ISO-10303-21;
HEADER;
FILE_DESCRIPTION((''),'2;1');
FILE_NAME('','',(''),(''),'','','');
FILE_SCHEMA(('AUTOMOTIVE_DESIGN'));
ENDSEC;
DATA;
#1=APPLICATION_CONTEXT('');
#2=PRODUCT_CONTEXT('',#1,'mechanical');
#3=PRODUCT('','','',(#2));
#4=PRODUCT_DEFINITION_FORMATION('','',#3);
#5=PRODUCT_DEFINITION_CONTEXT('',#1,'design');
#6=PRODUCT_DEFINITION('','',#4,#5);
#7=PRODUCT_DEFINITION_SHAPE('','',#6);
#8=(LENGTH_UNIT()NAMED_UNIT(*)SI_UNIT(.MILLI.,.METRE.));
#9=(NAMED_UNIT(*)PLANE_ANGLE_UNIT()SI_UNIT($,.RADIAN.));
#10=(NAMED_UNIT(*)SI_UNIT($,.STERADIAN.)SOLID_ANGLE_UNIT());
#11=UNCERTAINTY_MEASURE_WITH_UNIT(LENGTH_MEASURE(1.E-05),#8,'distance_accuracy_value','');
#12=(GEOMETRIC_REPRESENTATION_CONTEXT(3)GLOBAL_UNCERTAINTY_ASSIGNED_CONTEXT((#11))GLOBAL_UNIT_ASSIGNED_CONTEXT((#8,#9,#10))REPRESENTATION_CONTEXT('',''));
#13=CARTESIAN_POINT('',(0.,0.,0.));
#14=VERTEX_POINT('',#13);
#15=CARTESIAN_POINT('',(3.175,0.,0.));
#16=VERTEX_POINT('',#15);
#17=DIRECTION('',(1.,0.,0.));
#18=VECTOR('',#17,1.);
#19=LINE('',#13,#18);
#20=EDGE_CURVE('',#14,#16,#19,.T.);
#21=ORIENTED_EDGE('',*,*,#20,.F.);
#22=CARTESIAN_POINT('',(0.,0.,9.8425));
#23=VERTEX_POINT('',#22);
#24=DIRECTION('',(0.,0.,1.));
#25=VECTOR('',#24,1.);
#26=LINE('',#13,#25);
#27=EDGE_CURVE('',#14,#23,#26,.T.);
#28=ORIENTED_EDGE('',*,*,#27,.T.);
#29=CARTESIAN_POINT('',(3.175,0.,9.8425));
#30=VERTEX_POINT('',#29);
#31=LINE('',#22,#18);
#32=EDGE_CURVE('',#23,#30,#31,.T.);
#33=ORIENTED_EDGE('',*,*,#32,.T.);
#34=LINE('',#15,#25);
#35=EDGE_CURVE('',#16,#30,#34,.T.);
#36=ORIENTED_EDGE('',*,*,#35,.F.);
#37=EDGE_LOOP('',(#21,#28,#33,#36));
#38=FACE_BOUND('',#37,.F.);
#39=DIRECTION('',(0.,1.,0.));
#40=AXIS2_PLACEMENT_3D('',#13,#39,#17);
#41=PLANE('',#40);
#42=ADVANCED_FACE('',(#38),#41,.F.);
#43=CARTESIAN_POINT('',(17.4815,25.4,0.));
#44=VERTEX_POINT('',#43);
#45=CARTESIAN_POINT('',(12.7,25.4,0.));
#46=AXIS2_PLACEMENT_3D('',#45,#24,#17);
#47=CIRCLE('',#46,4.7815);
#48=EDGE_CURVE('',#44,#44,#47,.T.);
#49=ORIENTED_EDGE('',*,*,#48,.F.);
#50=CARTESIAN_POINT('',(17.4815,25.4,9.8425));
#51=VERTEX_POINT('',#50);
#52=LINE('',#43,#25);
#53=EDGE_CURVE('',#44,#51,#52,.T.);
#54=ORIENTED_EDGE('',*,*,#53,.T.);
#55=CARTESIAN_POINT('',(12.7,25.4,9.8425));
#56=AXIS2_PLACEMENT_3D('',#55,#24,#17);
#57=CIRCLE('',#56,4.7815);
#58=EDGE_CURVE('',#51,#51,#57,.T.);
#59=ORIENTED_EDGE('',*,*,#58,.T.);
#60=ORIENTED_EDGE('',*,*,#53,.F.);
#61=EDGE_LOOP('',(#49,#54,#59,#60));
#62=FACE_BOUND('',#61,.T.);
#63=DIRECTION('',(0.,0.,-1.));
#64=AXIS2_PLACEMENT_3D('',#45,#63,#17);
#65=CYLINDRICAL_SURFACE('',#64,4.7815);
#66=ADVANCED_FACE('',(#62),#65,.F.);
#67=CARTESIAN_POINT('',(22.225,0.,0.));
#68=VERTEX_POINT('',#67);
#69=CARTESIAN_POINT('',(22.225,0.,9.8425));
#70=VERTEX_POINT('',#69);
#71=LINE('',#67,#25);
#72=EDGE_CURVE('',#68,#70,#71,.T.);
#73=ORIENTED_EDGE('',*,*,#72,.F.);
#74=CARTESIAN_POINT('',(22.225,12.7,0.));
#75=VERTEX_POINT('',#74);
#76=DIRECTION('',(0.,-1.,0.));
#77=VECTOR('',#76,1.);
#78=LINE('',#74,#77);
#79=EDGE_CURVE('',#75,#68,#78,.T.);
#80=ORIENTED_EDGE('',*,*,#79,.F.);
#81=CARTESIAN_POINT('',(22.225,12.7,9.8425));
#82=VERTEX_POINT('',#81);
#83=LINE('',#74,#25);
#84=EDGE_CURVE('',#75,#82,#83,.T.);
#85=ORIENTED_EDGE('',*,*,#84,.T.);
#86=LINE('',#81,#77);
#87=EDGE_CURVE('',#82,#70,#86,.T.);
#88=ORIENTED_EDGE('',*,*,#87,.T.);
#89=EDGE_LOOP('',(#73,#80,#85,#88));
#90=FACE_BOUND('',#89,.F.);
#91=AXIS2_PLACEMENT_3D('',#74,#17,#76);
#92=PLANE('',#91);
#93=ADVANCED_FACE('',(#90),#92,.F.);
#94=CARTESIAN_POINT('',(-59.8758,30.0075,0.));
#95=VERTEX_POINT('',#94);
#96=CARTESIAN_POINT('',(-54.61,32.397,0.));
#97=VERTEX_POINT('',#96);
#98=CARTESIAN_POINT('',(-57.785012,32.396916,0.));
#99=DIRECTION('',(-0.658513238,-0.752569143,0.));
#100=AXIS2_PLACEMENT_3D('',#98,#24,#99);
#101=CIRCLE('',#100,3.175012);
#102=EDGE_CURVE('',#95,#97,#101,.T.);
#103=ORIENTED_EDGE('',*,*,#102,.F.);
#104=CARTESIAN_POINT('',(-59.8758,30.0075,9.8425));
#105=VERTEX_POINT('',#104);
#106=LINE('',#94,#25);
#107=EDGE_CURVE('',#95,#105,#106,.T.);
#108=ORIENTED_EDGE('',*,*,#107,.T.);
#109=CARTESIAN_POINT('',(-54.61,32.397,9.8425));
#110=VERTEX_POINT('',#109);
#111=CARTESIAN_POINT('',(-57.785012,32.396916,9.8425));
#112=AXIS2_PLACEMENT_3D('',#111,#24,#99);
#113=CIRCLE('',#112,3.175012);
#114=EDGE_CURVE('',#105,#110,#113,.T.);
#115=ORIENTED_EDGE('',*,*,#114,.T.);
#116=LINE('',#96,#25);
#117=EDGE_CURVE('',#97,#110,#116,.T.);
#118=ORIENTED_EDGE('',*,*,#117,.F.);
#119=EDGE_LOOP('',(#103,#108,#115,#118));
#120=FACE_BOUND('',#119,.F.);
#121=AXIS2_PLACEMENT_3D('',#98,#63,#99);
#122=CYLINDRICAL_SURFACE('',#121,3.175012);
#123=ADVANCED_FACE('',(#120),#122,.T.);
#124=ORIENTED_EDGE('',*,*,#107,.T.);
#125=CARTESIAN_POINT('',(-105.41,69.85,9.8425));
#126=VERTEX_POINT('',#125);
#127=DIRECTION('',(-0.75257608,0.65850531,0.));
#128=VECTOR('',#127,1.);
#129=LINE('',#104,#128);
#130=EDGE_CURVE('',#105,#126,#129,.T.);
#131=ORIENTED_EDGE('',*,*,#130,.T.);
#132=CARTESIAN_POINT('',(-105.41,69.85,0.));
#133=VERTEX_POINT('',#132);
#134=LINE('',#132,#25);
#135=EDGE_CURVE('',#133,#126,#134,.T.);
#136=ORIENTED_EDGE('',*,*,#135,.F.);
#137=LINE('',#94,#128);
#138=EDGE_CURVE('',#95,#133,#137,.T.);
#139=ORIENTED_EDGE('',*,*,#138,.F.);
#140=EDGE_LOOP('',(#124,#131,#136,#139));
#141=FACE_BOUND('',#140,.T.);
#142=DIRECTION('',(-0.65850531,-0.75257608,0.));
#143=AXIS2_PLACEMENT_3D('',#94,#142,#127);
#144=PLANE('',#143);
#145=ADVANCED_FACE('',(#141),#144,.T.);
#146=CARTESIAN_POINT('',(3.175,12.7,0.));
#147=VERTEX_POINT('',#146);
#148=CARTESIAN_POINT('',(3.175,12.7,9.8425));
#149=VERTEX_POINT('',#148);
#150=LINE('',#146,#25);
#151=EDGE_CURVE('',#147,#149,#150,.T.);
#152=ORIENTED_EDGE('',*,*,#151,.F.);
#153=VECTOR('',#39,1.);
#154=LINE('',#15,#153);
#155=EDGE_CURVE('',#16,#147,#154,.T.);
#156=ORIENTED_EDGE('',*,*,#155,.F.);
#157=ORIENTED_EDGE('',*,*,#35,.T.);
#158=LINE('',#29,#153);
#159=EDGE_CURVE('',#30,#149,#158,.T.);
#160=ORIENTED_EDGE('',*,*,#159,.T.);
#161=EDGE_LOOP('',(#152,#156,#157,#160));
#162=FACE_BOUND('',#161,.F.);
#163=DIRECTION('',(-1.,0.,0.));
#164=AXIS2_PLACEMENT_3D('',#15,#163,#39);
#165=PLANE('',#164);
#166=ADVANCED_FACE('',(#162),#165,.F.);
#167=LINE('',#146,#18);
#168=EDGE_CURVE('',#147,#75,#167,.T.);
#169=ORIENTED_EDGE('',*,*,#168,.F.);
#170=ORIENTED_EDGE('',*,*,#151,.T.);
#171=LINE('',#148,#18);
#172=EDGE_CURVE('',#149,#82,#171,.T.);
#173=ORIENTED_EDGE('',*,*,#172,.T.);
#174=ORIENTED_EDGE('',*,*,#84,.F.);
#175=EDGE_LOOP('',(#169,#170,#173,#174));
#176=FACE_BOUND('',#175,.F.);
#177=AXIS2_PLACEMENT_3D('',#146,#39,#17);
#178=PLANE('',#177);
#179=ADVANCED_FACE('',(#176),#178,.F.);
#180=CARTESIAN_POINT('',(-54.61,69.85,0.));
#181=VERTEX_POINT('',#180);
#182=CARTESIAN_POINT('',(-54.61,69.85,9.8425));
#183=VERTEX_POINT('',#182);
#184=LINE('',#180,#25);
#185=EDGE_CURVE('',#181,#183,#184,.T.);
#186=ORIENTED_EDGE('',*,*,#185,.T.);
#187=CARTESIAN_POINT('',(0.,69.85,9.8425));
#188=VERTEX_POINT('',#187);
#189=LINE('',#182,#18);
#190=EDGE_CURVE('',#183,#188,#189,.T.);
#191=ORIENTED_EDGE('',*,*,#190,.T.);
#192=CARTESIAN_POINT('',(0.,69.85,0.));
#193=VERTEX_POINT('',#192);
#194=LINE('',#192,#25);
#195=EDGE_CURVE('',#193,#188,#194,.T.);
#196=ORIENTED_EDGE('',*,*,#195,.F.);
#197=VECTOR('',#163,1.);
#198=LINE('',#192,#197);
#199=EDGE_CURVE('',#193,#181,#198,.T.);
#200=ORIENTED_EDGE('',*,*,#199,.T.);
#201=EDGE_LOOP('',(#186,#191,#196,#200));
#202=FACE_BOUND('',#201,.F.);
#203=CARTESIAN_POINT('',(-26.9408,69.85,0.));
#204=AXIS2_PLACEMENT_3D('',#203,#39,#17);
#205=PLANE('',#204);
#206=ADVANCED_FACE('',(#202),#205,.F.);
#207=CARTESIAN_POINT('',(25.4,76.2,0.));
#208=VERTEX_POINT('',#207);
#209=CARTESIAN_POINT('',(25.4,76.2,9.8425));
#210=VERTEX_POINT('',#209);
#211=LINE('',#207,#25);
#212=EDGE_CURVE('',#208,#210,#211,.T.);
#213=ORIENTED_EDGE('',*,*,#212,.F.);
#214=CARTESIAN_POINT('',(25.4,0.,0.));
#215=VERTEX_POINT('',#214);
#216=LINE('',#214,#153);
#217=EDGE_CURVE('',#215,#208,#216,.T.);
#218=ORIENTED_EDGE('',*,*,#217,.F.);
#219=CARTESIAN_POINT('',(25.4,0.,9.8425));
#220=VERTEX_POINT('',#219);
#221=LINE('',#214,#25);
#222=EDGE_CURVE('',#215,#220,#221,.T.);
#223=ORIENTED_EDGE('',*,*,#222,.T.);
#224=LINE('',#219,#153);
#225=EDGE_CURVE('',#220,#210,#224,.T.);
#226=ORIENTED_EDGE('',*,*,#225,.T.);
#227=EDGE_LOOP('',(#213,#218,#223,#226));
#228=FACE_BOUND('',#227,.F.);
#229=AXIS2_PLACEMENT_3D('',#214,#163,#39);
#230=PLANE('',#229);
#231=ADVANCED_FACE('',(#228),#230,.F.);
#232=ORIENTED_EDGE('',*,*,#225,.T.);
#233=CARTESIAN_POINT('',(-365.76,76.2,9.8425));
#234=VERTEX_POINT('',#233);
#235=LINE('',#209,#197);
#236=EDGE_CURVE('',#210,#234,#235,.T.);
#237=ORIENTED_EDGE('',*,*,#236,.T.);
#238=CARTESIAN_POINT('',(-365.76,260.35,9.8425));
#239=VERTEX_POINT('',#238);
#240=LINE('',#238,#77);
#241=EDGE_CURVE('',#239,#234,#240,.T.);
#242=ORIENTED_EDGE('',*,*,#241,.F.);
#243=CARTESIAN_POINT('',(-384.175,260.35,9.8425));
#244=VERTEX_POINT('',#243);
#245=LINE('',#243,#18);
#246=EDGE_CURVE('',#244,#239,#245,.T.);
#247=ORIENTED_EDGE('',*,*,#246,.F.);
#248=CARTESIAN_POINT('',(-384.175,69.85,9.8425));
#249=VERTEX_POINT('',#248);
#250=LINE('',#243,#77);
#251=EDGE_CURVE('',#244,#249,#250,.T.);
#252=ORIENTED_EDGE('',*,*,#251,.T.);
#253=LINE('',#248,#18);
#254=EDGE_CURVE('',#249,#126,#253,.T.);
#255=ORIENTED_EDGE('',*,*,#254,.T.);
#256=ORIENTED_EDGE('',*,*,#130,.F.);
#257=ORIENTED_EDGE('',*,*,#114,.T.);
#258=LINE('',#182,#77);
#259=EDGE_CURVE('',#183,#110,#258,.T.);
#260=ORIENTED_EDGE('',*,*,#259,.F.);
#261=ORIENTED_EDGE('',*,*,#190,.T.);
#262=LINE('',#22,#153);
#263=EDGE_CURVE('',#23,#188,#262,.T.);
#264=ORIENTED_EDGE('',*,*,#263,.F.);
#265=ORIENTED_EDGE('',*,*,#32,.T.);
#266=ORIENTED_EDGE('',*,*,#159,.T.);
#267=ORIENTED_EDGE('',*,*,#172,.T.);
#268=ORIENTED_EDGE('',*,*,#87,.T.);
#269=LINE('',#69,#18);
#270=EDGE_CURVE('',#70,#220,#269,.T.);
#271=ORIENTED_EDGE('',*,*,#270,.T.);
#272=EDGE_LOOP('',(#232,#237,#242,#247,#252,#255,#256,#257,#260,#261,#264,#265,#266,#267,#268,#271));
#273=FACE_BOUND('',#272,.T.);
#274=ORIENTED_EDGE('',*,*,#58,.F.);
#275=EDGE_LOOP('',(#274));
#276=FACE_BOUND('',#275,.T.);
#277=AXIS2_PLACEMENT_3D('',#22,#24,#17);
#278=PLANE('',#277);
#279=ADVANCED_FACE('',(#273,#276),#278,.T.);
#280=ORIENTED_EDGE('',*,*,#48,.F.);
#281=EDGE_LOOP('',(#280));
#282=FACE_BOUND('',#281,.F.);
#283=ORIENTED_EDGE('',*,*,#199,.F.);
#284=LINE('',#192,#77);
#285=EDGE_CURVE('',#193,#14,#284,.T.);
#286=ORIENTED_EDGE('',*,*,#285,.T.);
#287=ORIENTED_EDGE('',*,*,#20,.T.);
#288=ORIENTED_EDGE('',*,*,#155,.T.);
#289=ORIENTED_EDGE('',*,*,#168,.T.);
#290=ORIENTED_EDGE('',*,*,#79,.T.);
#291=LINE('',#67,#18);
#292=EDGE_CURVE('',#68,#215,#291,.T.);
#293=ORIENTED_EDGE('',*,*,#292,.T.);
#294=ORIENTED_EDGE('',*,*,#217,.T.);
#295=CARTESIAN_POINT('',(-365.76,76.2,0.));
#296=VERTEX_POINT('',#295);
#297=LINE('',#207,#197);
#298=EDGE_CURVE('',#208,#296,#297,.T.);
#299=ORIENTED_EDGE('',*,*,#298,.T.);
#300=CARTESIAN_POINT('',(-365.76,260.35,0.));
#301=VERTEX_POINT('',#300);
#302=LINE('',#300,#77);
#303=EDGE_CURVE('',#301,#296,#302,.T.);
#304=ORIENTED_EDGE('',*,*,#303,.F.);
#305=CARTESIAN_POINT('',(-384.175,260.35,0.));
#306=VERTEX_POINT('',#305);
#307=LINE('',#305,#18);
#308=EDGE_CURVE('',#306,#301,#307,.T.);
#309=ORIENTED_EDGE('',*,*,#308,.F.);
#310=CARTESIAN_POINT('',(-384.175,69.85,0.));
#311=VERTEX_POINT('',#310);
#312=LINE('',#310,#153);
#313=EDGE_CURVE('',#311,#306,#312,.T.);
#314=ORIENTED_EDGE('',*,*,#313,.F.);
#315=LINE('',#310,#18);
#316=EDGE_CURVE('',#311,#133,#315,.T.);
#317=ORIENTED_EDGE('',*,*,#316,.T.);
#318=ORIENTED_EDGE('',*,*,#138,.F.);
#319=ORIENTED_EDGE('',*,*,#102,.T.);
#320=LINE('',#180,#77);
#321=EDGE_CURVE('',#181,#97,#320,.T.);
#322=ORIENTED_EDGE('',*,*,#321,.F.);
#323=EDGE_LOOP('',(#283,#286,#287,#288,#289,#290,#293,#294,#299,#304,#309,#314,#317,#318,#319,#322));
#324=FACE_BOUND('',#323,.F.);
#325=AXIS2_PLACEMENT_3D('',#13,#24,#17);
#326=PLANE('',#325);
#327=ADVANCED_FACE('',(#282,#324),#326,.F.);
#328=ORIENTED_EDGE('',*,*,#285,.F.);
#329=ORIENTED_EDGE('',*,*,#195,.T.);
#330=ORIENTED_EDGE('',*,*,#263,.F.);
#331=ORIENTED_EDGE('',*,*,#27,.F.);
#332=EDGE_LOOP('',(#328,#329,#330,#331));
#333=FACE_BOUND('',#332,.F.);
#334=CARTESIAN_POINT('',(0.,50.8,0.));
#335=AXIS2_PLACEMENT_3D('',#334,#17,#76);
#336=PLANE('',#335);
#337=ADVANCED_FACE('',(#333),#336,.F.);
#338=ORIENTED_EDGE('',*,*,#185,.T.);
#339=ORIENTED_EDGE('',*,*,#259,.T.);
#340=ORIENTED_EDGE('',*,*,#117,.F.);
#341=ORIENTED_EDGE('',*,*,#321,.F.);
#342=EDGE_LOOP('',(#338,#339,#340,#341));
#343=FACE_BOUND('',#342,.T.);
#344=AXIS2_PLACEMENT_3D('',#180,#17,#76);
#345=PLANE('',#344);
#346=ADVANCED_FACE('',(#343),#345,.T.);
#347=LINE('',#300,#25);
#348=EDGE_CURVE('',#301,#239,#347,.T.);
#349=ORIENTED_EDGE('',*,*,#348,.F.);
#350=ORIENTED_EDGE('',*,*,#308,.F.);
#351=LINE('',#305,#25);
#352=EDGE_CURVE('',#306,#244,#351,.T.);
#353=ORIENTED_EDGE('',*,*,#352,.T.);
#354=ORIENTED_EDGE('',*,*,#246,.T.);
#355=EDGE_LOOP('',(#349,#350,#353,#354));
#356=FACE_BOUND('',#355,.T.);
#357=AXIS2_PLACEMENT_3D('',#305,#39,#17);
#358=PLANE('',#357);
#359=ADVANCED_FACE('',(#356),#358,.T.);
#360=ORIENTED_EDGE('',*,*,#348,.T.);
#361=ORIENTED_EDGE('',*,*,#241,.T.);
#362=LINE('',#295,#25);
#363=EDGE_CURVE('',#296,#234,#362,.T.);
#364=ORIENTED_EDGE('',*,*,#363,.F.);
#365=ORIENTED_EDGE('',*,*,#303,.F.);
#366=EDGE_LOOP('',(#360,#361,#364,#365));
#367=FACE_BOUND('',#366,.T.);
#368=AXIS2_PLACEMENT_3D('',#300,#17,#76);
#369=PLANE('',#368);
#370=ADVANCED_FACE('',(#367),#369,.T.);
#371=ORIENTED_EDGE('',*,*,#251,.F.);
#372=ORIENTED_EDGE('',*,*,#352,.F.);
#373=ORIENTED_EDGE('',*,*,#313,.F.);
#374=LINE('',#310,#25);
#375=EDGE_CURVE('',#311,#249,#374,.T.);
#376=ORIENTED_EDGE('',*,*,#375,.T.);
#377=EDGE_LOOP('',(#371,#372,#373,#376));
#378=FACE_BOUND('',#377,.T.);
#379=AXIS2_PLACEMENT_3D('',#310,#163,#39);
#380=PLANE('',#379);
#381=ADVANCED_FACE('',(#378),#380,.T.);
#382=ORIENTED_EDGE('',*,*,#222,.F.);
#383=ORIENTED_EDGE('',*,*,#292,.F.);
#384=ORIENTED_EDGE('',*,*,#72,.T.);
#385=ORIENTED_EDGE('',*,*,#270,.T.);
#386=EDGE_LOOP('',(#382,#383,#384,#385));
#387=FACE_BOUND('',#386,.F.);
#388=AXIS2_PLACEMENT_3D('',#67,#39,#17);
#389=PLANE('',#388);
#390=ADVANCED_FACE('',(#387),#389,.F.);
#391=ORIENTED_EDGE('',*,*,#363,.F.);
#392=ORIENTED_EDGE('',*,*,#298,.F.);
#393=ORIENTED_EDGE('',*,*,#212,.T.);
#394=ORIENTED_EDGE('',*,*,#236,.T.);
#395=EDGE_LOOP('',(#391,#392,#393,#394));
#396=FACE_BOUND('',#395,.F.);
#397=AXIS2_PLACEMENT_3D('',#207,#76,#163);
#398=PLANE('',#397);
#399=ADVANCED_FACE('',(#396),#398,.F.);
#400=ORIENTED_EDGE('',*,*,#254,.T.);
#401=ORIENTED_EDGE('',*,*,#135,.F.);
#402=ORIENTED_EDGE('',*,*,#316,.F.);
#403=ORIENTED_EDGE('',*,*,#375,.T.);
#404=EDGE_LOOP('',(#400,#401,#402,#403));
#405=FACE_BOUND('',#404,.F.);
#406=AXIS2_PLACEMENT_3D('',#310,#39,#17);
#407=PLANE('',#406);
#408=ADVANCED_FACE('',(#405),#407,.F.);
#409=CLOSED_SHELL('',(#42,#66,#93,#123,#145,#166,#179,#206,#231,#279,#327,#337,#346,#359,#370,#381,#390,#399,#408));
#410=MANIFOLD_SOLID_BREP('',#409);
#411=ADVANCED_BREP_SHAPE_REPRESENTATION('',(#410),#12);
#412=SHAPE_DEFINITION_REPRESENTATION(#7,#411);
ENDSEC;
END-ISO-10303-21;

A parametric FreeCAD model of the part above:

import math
import FreeCAD as App
import Part
import Sketcher
from FreeCAD import Vector
Q = App.Units.Quantity

doc = App.newDocument("Part")
params = doc.addObject("Spreadsheet::Sheet", "Params")
for row, (alias, value) in enumerate([
    ("sketch1_height", "3 in"),
    ("sketch1_height2", "0.5 in"),
    ("sketch1_height3", "7.5 in"),
    ("sketch1_radius", "0.125 in"),
    ("sketch1_width", "0.75 in"),
    ("pad1_length", "0.3875 in"),
], start=1):
    params.set(f"A{row}", alias)
    params.set(f"B{row}", "=" + value)
    params.setAlias(f"B{row}", alias)

body = doc.addObject("PartDesign::Body", "Body")

# Sketch on XY plane
sketch1 = body.newObject("Sketcher::SketchObject", "Sketch")
sketch1.AttachmentSupport = (doc.getObject("XY_Plane"), [""])
sketch1.MapMode = "FlatFace"
sketch1.addGeometry(Part.LineSegment(Vector(0, 0, 0), Vector(3.2, 0, 0)), False)
sketch1.addGeometry(Part.LineSegment(Vector(3.2, 0, 0), Vector(3.2, 12.7, 0)), False)
sketch1.addGeometry(Part.LineSegment(Vector(3.2, 12.7, 0), Vector(22.2, 12.7, 0)), False)
sketch1.addGeometry(Part.LineSegment(Vector(22.2, 12.7, 0), Vector(22.2, 0, 0)), False)
sketch1.addGeometry(Part.LineSegment(Vector(22.2, 0, 0), Vector(25.4, 0, 0)), False)
sketch1.addGeometry(Part.LineSegment(Vector(25.4, 0, 0), Vector(25.4, 76.2, 0)), False)
sketch1.addGeometry(Part.LineSegment(Vector(25.4, 76.2, 0), Vector(-365.8, 76.2, 0)), False)
sketch1.addGeometry(Part.LineSegment(Vector(-365.8, 76.2, 0), Vector(-365.8, 260.4, 0)), False)
sketch1.addGeometry(Part.LineSegment(Vector(-365.8, 260.4, 0), Vector(-384.2, 260.4, 0)), False)
sketch1.addGeometry(Part.LineSegment(Vector(-384.2, 260.4, 0), Vector(-384.2, 69.8, 0)), False)
sketch1.addGeometry(Part.LineSegment(Vector(-384.2, 69.8, 0), Vector(-105.4, 69.8, 0)), False)
sketch1.addGeometry(Part.LineSegment(Vector(-105.4, 69.8, 0), Vector(-59.9, 30, 0)), False)
sketch1.addGeometry(Part.ArcOfCircle(Part.Circle(Vector(-57.8, 32.4, 0), Vector(0, 0, 1), 3.2), math.radians(-131), math.radians(0)), False)
sketch1.addGeometry(Part.LineSegment(Vector(-54.6, 32.4, 0), Vector(-54.6, 69.8, 0)), False)
sketch1.addGeometry(Part.LineSegment(Vector(-54.6, 69.8, 0), Vector(0, 69.8, 0)), False)
sketch1.addGeometry(Part.LineSegment(Vector(0, 69.8, 0), Vector(0, 0, 0)), False)
sketch1.addGeometry(Part.Circle(Vector(12.7, 25.4, 0), Vector(0, 0, 1), 4.8), False)
sketch1.addConstraint(Sketcher.Constraint("Coincident", 0, 2, 1, 1))
sketch1.addConstraint(Sketcher.Constraint("Coincident", 1, 2, 2, 1))
sketch1.addConstraint(Sketcher.Constraint("Coincident", 2, 2, 3, 1))
sketch1.addConstraint(Sketcher.Constraint("Coincident", 3, 2, 4, 1))
sketch1.addConstraint(Sketcher.Constraint("Coincident", 4, 2, 5, 1))
sketch1.addConstraint(Sketcher.Constraint("Coincident", 5, 2, 6, 1))
sketch1.addConstraint(Sketcher.Constraint("Coincident", 6, 2, 7, 1))
sketch1.addConstraint(Sketcher.Constraint("Coincident", 7, 2, 8, 1))
sketch1.addConstraint(Sketcher.Constraint("Coincident", 8, 2, 9, 1))
sketch1.addConstraint(Sketcher.Constraint("Coincident", 9, 2, 10, 1))
sketch1.addConstraint(Sketcher.Constraint("Coincident", 10, 2, 11, 1))
sketch1.addConstraint(Sketcher.Constraint("Tangent", 11, 2, 12, 1))
sketch1.addConstraint(Sketcher.Constraint("Tangent", 12, 2, 13, 1))
sketch1.addConstraint(Sketcher.Constraint("Coincident", 13, 2, 14, 1))
sketch1.addConstraint(Sketcher.Constraint("Coincident", 14, 2, 15, 1))
sketch1.addConstraint(Sketcher.Constraint("Coincident", 15, 2, 0, 1))
sketch1.addConstraint(Sketcher.Constraint("Horizontal", 0))
sketch1.addConstraint(Sketcher.Constraint("Vertical", 1))
sketch1.addConstraint(Sketcher.Constraint("Horizontal", 2))
sketch1.addConstraint(Sketcher.Constraint("Vertical", 3))
sketch1.addConstraint(Sketcher.Constraint("Horizontal", 4))
sketch1.addConstraint(Sketcher.Constraint("Vertical", 5))
sketch1.addConstraint(Sketcher.Constraint("Horizontal", 6))
sketch1.addConstraint(Sketcher.Constraint("Vertical", 7))
sketch1.addConstraint(Sketcher.Constraint("Horizontal", 8))
sketch1.addConstraint(Sketcher.Constraint("Vertical", 9))
sketch1.addConstraint(Sketcher.Constraint("Horizontal", 10))
sketch1.addConstraint(Sketcher.Constraint("Vertical", 13))
sketch1.addConstraint(Sketcher.Constraint("Horizontal", 14))
sketch1.addConstraint(Sketcher.Constraint("Vertical", 15))
sketch1.addConstraint(Sketcher.Constraint("Coincident", 15, 2, -1, 1))
sketch1.addConstraint(Sketcher.Constraint("PointOnObject", 3, 2, -1))
sketch1.addConstraint(Sketcher.Constraint("Horizontal", 10, 2, 13, 2))
sketch1.addConstraint(Sketcher.Constraint("Equal", 0, 4))
sketch1.addConstraint(Sketcher.Constraint("DistanceY", 5, 1, 5, 2, Q("3 in")))
sketch1.addConstraint(Sketcher.Constraint("DistanceY", 1, 1, 1, 2, Q("0.5 in")))
sketch1.addConstraint(Sketcher.Constraint("DistanceY", 9, 2, 9, 1, Q("7.5 in")))
sketch1.addConstraint(Sketcher.Constraint("Radius", 12, Q("0.125 in")))
sketch1.addConstraint(Sketcher.Constraint("DistanceY", 16, 3, 5, 2, Q("2 in")))
sketch1.addConstraint(Sketcher.Constraint("DistanceX", 10, 2, 12, 2, Q("2 in")))
sketch1.addConstraint(Sketcher.Constraint("Diameter", 16, Q("0.3765 in")))
sketch1.addConstraint(Sketcher.Constraint("DistanceX", 2, 1, 2, 2, Q("0.75 in")))
sketch1.addConstraint(Sketcher.Constraint("DistanceX", 14, 1, 14, 2, Q("2.15 in")))
sketch1.addConstraint(Sketcher.Constraint("DistanceY", 7, 1, 7, 2, Q("7.25 in")))
sketch1.addConstraint(Sketcher.Constraint("DistanceX", -1, 1, 16, 3, Q("0.5 in")))
sketch1.addConstraint(Sketcher.Constraint("DistanceX", 16, 3, 4, 2, Q("0.5 in")))
sketch1.addConstraint(Sketcher.Constraint("DistanceX", 8, 2, 8, 1, Q("0.725 in")))
sketch1.addConstraint(Sketcher.Constraint("DistanceX", 6, 2, 6, 1, Q("15.4 in")))
sketch1.addConstraint(Sketcher.Constraint("DistanceY", 13, 1, 13, 2, Q("37.453 mm")))
sketch1.setExpression("Constraints[34]", "Params.sketch1_height")
sketch1.setExpression("Constraints[35]", "Params.sketch1_height2")
sketch1.setExpression("Constraints[36]", "Params.sketch1_height3")
sketch1.setExpression("Constraints[37]", "Params.sketch1_radius")
sketch1.setExpression("Constraints[41]", "Params.sketch1_width")
pad1 = body.newObject("PartDesign::Pad", "Pad")
pad1.Profile = sketch1
pad1.setExpression("Length", "Params.pad1_length")

doc.recompute()
